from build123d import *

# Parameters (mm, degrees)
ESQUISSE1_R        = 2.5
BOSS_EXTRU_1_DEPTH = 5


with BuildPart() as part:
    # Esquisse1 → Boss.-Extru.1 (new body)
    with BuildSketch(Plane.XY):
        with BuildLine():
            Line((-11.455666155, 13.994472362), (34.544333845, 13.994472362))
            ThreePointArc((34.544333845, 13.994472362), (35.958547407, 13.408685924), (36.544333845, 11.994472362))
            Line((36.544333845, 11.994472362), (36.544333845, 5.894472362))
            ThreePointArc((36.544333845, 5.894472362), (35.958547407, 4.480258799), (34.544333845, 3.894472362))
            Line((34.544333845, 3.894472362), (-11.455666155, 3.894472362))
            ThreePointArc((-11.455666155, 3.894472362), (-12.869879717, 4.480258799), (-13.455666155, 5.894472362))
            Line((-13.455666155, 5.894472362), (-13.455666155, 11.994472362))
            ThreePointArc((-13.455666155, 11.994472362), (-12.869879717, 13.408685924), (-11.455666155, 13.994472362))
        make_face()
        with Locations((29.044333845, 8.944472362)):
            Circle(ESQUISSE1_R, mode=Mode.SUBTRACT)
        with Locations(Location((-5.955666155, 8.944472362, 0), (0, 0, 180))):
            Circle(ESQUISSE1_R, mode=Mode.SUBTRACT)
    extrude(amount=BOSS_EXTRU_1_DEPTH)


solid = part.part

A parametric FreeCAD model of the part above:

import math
import FreeCAD as App
import Part
import Sketcher

doc = App.newDocument("Part")
body = doc.addObject("PartDesign::Body", "Body")

# Sketch on XY plane
sketch1 = body.newObject("Sketcher::SketchObject", "Sketch")
sketch1.AttachmentSupport = (doc.getObject("XY_Plane"), [""])
sketch1.MapMode = "FlatFace"
sketch1.addGeometry([
    Part.LineSegment(App.Vector(34.5, 14, 0), App.Vector(-11.5, 14, 0)),  # 0
    Part.ArcOfCircle(Part.Circle(App.Vector(-11.5, 12, 0), App.Vector(0, 0, 1), 2), math.radians(90), math.radians(180)),  # 1
    Part.LineSegment(App.Vector(-13.5, 12, 0), App.Vector(-13.5, 5.9, 0)),  # 2
    Part.ArcOfCircle(Part.Circle(App.Vector(-11.5, 5.9, 0), App.Vector(0, 0, 1), 2), math.radians(180), math.radians(270)),  # 3
    Part.LineSegment(App.Vector(-11.5, 3.9, 0), App.Vector(34.5, 3.9, 0)),  # 4
    Part.ArcOfCircle(Part.Circle(App.Vector(34.5, 5.9, 0), App.Vector(0, 0, 1), 2), math.radians(-90), math.radians(0)),  # 5
    Part.LineSegment(App.Vector(36.5, 5.9, 0), App.Vector(36.5, 12, 0)),  # 6
    Part.ArcOfCircle(Part.Circle(App.Vector(34.5, 12, 0), App.Vector(0, 0, 1), 2), math.radians(0), math.radians(90)),  # 7
    Part.Circle(App.Vector(29, 8.9, 0), App.Vector(0, 0, 1), 2.5),  # 8
    Part.Circle(App.Vector(-6, 8.9, 0), App.Vector(0, 0, 1), 2.5),  # 9
], False)
sketch1.addConstraint([
    Sketcher.Constraint("Tangent", 0, 2, 1, 1),
    Sketcher.Constraint("Tangent", 1, 2, 2, 1),
    Sketcher.Constraint("Tangent", 2, 2, 3, 1),
    Sketcher.Constraint("Tangent", 3, 2, 4, 1),
    Sketcher.Constraint("Tangent", 4, 2, 5, 1),
    Sketcher.Constraint("Tangent", 5, 2, 6, 1),
    Sketcher.Constraint("Tangent", 6, 2, 7, 1),
    Sketcher.Constraint("Tangent", 7, 2, 0, 1),
    Sketcher.Constraint("Horizontal", 0),
    Sketcher.Constraint("Vertical", 2),
    Sketcher.Constraint("Horizontal", 4),
    Sketcher.Constraint("Vertical", 6),
    Sketcher.Constraint("Equal", 1, 3),
    Sketcher.Constraint("Equal", 3, 5),
    Sketcher.Constraint("Equal", 5, 7),
    Sketcher.Constraint("Equal", 8, 9),
    Sketcher.Constraint("Horizontal", 8, 3, 9, 3),
    Sketcher.Constraint("Diameter", 8, 5.0),
    Sketcher.Constraint("Radius", 1, 2.0),
    Sketcher.Constraint("DistanceX", 0, 2, 0, 1, 46.0),
    Sketcher.Constraint("DistanceY", 2, 2, 2, 1, 6.1),
    Sketcher.Constraint("DistanceX", 9, 3, 8, 3, 35.0),
    Sketcher.Constraint("DistanceX", 8, 3, 7, 3, 5.5),
    Sketcher.Constraint("DistanceY", 8, 3, 7, 3, 3.05),
    Sketcher.Constraint("DistanceX", 1, 3, -1, 1, 11.455666),
    Sketcher.Constraint("DistanceY", -1, 1, 1, 3, 11.994472),
])
pad1 = body.newObject("PartDesign::Pad", "Pad")
pad1.Profile = sketch1
pad1.Length = 5

doc.recompute()
